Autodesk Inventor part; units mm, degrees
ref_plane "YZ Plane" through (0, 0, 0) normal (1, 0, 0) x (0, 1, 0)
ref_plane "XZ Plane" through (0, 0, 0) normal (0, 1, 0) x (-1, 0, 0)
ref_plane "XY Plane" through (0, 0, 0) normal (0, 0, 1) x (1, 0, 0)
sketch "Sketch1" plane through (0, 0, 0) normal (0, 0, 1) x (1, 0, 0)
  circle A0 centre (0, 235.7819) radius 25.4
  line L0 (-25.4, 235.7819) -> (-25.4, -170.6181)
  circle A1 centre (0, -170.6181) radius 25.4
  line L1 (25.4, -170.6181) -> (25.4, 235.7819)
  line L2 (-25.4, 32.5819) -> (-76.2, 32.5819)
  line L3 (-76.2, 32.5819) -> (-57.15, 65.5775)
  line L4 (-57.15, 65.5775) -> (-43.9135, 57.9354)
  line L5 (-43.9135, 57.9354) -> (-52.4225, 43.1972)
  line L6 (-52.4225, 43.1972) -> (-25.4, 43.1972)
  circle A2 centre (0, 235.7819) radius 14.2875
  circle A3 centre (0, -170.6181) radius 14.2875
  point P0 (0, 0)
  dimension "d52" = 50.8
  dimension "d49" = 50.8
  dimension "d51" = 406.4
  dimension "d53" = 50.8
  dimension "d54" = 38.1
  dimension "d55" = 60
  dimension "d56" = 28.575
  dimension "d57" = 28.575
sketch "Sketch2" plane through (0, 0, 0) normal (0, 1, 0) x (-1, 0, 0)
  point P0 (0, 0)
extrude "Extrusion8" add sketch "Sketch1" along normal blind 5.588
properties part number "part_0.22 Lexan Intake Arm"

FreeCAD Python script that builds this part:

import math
import FreeCAD as App
import Part
import Sketcher
Q = App.Units.Quantity

doc = App.newDocument("Part")
body = doc.addObject("PartDesign::Body", "Body")

sketch1 = body.newObject("Sketcher::SketchObject", "Sketch")
sketch1.AttachmentSupport = (doc.getObject("XY_Plane"), [""])
sketch1.MapMode = "FlatFace"
sketch1.addGeometry([
    Part.ArcOfCircle(Part.Circle(App.Vector(0, 235.7819, 0), App.Vector(0, 0, 1), 25.4), math.radians(0), math.radians(180)),
    Part.LineSegment(App.Vector(-25.4, 235.7819, 0), App.Vector(-25.4, 43.1972, 0)),
    Part.LineSegment(App.Vector(-25.4, 43.1972, 0), App.Vector(-52.4225, 43.1972, 0)),
    Part.LineSegment(App.Vector(-52.4225, 43.1972, 0), App.Vector(-43.9135, 57.9354, 0)),
    Part.LineSegment(App.Vector(-43.9135, 57.9354, 0), App.Vector(-57.15, 65.5775, 0)),
    Part.LineSegment(App.Vector(-57.15, 65.5775, 0), App.Vector(-76.2, 32.5819, 0)),
    Part.LineSegment(App.Vector(-76.2, 32.5819, 0), App.Vector(-25.4, 32.5819, 0)),
    Part.LineSegment(App.Vector(-25.4, 32.5819, 0), App.Vector(-25.4, -170.6181, 0)),
    Part.ArcOfCircle(Part.Circle(App.Vector(0, -170.6181, 0), App.Vector(0, 0, 1), 25.4), math.radians(180), math.radians(360)),
    Part.LineSegment(App.Vector(25.4, -170.6181, 0), App.Vector(25.4, 235.7819, 0)),
    Part.Circle(App.Vector(0, 235.7819, 0), App.Vector(0, 0, 1), 14.2875),
    Part.Circle(App.Vector(0, -170.6181, 0), App.Vector(0, 0, 1), 14.2875),
], False)
sketch1.addConstraint([
    Sketcher.Constraint("Tangent", 0, 2, 1, 1),
    Sketcher.Constraint("Coincident", 1, 2, 2, 1),
    Sketcher.Constraint("Coincident", 2, 2, 3, 1),
    Sketcher.Constraint("Coincident", 3, 2, 4, 1),
    Sketcher.Constraint("Coincident", 4, 2, 5, 1),
    Sketcher.Constraint("Coincident", 5, 2, 6, 1),
    Sketcher.Constraint("Coincident", 6, 2, 7, 1),
    Sketcher.Constraint("Tangent", 7, 2, 8, 1),
    Sketcher.Constraint("Tangent", 8, 2, 9, 1),
    Sketcher.Constraint("Tangent", 9, 2, 0, 1),
    Sketcher.Constraint("Vertical", 1),
    Sketcher.Constraint("Horizontal", 2),
    Sketcher.Constraint("Horizontal", 6),
    Sketcher.Constraint("Vertical", 7),
    Sketcher.Constraint("Vertical", 9),
    Sketcher.Constraint("Coincident", 10, 3, 0, 3),
    Sketcher.Constraint("Coincident", 11, 3, 8, 3),
    Sketcher.Constraint("Equal", 0, 8),
    Sketcher.Constraint("Equal", 10, 11),
    Sketcher.Constraint("PointOnObject", 0, 3, -2),
    Sketcher.Constraint("Perpendicular", 3, 4),
    Sketcher.Constraint("Perpendicular", 4, 5),
    Sketcher.Constraint("Radius", 0, Q("1 in")),
    Sketcher.Constraint("DistanceX", 6, 1, 6, 2, Q("2 in")),
    Sketcher.Constraint("DistanceY", 9, 1, 9, 2, Q("16 in")),
    Sketcher.Constraint("Diameter", 10, Q("1.125 in")),
    Sketcher.Constraint("Angle", 3, Q("60.0003 deg")),
    Sketcher.Constraint("Distance", 5, Q("1.5 in")),
    Sketcher.Constraint("DistanceY", 7, 2, 7, 1, Q("8 in")),
    Sketcher.Constraint("Distance", 3, Q("0.67 in")),
    Sketcher.Constraint("DistanceX", 2, 2, 2, 1, Q("27.0225 mm")),
    Sketcher.Constraint("DistanceY", -1, 1, 4, 2, Q("2.5818 in")),
])
pad1 = body.newObject("PartDesign::Pad", "Pad")
pad1.Profile = sketch1
pad1.Length = Q("0.22 in")

doc.recompute()
